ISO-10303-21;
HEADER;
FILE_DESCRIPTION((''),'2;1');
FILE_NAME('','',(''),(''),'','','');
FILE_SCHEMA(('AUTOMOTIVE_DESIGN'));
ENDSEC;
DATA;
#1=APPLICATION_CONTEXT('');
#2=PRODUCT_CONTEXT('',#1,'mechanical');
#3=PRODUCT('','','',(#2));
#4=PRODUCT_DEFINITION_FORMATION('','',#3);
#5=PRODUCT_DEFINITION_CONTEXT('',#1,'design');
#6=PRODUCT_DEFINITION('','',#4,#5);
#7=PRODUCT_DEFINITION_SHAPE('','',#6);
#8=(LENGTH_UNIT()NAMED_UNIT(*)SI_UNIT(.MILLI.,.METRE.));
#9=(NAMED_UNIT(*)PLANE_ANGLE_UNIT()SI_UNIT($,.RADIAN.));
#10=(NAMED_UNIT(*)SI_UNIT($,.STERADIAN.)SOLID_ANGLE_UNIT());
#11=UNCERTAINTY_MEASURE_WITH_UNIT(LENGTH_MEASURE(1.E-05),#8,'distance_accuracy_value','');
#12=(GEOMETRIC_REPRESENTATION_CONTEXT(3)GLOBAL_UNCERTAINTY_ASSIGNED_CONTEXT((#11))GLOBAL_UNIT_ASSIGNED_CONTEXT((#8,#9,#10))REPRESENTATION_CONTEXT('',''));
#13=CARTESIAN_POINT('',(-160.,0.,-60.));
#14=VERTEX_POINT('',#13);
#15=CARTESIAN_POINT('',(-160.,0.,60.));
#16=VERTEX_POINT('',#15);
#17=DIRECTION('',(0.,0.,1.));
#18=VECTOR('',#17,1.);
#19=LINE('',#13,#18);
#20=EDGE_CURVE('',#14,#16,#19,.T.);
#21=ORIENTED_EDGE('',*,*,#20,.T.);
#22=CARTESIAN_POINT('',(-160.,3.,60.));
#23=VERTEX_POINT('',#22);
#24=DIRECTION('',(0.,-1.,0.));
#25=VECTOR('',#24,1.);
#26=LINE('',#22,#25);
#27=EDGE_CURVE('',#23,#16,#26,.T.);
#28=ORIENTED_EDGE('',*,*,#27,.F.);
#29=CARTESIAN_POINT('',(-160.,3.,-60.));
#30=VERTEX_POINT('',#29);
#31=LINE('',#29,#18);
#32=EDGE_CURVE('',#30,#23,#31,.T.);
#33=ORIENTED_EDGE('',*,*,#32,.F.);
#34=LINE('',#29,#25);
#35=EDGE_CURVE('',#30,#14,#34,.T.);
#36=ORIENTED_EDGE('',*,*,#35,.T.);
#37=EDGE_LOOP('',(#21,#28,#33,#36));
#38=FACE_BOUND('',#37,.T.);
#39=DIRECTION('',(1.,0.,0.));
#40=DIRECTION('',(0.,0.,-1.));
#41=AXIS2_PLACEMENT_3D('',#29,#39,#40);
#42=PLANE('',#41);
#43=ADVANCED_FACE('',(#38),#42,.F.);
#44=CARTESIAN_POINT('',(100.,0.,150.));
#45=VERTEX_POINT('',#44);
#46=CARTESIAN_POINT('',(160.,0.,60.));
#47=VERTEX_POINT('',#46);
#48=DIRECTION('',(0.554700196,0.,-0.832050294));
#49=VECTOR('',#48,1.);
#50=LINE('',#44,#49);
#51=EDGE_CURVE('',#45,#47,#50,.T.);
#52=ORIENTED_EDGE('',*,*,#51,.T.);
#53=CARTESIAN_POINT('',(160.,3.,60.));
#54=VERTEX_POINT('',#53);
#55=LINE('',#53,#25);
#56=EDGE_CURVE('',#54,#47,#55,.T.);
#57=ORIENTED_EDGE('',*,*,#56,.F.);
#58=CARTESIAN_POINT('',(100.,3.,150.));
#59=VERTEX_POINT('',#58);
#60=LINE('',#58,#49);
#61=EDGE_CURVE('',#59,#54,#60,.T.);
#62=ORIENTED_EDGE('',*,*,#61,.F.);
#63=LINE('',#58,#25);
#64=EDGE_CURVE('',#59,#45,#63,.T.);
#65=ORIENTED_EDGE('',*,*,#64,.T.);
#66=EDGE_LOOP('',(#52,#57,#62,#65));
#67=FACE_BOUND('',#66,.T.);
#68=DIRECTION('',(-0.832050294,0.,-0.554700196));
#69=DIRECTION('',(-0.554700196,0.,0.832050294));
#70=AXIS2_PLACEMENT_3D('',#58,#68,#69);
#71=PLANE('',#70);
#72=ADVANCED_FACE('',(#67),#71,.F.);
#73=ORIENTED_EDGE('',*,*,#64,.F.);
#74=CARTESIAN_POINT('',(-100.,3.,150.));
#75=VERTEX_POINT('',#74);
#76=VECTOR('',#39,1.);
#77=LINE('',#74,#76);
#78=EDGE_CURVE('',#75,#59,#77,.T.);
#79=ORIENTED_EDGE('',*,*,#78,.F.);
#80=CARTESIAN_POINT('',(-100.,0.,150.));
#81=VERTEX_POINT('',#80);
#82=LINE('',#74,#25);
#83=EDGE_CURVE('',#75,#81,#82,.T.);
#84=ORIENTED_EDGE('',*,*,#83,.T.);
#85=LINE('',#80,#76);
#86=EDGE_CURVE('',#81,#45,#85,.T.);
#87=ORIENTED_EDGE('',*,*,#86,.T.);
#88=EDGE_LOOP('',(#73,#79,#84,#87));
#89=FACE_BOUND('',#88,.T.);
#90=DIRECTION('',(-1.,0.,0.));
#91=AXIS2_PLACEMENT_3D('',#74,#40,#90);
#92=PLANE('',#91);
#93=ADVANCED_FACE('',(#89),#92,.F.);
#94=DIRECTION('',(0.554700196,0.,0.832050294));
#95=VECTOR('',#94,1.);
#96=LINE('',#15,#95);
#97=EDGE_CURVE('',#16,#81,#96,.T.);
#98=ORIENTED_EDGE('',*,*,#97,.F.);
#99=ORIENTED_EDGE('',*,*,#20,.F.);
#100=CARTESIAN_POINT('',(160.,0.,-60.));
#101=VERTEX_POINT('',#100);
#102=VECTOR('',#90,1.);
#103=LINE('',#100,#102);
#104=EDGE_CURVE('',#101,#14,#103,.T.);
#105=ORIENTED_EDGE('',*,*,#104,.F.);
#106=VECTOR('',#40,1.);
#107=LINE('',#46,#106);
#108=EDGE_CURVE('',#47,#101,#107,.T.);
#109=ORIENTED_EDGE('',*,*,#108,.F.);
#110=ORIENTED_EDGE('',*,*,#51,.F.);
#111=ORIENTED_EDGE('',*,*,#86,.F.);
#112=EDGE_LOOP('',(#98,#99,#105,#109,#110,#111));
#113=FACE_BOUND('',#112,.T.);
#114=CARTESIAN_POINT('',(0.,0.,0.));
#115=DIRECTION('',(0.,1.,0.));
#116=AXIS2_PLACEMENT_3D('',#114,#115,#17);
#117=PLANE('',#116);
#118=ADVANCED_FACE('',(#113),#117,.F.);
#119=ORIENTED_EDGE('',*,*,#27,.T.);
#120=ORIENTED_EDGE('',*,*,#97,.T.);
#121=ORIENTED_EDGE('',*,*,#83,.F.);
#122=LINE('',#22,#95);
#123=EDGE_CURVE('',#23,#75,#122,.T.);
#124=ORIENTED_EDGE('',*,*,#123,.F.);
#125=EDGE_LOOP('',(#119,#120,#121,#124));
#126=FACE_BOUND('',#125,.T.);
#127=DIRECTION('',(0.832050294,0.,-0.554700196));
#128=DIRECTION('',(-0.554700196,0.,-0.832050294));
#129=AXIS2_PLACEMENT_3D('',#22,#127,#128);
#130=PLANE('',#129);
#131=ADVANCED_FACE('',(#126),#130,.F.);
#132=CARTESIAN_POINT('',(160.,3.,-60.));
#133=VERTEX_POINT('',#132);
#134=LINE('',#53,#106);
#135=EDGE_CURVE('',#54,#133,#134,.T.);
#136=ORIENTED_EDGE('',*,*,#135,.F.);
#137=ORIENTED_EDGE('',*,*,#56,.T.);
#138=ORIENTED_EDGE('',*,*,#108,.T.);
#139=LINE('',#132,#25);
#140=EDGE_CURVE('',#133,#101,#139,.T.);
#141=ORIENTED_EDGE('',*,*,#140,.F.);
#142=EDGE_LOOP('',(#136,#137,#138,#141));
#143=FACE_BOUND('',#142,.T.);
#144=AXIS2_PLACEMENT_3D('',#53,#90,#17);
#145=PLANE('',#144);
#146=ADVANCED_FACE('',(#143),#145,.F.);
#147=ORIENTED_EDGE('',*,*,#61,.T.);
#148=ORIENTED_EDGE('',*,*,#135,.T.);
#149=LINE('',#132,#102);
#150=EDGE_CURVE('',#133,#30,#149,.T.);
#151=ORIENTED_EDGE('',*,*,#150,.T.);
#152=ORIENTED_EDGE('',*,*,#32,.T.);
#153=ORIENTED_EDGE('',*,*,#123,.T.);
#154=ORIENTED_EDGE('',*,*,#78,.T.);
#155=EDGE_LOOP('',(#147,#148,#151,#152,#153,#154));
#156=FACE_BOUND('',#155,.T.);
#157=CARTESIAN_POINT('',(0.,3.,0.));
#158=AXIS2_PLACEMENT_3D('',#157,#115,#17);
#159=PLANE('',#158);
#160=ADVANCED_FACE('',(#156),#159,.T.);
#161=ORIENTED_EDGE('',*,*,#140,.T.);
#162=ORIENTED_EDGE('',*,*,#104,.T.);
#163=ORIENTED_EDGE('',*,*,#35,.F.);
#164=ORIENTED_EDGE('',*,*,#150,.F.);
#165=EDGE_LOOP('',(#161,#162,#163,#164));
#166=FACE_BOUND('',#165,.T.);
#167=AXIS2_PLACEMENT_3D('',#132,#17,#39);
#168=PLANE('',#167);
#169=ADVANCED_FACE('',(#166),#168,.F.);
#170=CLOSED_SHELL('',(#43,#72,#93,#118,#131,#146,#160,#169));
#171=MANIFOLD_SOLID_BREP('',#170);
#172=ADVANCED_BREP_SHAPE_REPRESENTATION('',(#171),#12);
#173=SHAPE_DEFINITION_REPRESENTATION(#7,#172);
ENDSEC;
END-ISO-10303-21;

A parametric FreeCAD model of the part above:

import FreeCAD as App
import Part
import Sketcher
Q = App.Units.Quantity


def add_polygon(sketch, points):
    """Adds a closed chain of lines whose ends are joined by coincident constraints."""
    first, n = sketch.GeometryCount, len(points)
    for a, b in zip(points, points[1:] + points[:1]):
        sketch.addGeometry(Part.LineSegment(App.Vector(*a, 0), App.Vector(*b, 0)), False)
    for i in range(n):
        sketch.addConstraint(Sketcher.Constraint("Coincident", first + i, 2, first + (i + 1) % n, 1))

doc = App.newDocument("Part")
body = doc.addObject("PartDesign::Body", "Body")

# Sketch on XZ plane
sketch1 = body.newObject("Sketcher::SketchObject", "Sketch")
sketch1.AttachmentSupport = (doc.getObject("XZ_Plane"), [""])
sketch1.MapMode = "FlatFace"
add_polygon(sketch1, [(160, -60), (-160, -60), (-160, 60), (-100, 150), (100, 150), (160, 60)])  # lines 0-5
sketch1.addConstraint([
    Sketcher.Constraint("Horizontal", 0),
    Sketcher.Constraint("Vertical", 1),
    Sketcher.Constraint("Horizontal", 3),
    Sketcher.Constraint("Vertical", 5),
    Sketcher.Constraint("Symmetric", 0, 2, 4, 2, -1, 1),
    Sketcher.Constraint("Horizontal", 1, 2, 4, 2),
    Sketcher.Constraint("Equal", 2, 4),
    Sketcher.Constraint("DistanceX", 0, 2, 0, 1, Q("320 mm")),
    Sketcher.Constraint("DistanceX", 3, 1, 3, 2, Q("200 mm")),
    Sketcher.Constraint("DistanceY", 1, 1, 1, 2, Q("120 mm")),
    Sketcher.Constraint("DistanceY", -1, 1, 2, 2, Q("150 mm")),
])
pad1 = body.newObject("PartDesign::Pad", "Pad")
pad1.Profile = sketch1
pad1.Length = 3
pad1.Reversed = True

doc.recompute()
